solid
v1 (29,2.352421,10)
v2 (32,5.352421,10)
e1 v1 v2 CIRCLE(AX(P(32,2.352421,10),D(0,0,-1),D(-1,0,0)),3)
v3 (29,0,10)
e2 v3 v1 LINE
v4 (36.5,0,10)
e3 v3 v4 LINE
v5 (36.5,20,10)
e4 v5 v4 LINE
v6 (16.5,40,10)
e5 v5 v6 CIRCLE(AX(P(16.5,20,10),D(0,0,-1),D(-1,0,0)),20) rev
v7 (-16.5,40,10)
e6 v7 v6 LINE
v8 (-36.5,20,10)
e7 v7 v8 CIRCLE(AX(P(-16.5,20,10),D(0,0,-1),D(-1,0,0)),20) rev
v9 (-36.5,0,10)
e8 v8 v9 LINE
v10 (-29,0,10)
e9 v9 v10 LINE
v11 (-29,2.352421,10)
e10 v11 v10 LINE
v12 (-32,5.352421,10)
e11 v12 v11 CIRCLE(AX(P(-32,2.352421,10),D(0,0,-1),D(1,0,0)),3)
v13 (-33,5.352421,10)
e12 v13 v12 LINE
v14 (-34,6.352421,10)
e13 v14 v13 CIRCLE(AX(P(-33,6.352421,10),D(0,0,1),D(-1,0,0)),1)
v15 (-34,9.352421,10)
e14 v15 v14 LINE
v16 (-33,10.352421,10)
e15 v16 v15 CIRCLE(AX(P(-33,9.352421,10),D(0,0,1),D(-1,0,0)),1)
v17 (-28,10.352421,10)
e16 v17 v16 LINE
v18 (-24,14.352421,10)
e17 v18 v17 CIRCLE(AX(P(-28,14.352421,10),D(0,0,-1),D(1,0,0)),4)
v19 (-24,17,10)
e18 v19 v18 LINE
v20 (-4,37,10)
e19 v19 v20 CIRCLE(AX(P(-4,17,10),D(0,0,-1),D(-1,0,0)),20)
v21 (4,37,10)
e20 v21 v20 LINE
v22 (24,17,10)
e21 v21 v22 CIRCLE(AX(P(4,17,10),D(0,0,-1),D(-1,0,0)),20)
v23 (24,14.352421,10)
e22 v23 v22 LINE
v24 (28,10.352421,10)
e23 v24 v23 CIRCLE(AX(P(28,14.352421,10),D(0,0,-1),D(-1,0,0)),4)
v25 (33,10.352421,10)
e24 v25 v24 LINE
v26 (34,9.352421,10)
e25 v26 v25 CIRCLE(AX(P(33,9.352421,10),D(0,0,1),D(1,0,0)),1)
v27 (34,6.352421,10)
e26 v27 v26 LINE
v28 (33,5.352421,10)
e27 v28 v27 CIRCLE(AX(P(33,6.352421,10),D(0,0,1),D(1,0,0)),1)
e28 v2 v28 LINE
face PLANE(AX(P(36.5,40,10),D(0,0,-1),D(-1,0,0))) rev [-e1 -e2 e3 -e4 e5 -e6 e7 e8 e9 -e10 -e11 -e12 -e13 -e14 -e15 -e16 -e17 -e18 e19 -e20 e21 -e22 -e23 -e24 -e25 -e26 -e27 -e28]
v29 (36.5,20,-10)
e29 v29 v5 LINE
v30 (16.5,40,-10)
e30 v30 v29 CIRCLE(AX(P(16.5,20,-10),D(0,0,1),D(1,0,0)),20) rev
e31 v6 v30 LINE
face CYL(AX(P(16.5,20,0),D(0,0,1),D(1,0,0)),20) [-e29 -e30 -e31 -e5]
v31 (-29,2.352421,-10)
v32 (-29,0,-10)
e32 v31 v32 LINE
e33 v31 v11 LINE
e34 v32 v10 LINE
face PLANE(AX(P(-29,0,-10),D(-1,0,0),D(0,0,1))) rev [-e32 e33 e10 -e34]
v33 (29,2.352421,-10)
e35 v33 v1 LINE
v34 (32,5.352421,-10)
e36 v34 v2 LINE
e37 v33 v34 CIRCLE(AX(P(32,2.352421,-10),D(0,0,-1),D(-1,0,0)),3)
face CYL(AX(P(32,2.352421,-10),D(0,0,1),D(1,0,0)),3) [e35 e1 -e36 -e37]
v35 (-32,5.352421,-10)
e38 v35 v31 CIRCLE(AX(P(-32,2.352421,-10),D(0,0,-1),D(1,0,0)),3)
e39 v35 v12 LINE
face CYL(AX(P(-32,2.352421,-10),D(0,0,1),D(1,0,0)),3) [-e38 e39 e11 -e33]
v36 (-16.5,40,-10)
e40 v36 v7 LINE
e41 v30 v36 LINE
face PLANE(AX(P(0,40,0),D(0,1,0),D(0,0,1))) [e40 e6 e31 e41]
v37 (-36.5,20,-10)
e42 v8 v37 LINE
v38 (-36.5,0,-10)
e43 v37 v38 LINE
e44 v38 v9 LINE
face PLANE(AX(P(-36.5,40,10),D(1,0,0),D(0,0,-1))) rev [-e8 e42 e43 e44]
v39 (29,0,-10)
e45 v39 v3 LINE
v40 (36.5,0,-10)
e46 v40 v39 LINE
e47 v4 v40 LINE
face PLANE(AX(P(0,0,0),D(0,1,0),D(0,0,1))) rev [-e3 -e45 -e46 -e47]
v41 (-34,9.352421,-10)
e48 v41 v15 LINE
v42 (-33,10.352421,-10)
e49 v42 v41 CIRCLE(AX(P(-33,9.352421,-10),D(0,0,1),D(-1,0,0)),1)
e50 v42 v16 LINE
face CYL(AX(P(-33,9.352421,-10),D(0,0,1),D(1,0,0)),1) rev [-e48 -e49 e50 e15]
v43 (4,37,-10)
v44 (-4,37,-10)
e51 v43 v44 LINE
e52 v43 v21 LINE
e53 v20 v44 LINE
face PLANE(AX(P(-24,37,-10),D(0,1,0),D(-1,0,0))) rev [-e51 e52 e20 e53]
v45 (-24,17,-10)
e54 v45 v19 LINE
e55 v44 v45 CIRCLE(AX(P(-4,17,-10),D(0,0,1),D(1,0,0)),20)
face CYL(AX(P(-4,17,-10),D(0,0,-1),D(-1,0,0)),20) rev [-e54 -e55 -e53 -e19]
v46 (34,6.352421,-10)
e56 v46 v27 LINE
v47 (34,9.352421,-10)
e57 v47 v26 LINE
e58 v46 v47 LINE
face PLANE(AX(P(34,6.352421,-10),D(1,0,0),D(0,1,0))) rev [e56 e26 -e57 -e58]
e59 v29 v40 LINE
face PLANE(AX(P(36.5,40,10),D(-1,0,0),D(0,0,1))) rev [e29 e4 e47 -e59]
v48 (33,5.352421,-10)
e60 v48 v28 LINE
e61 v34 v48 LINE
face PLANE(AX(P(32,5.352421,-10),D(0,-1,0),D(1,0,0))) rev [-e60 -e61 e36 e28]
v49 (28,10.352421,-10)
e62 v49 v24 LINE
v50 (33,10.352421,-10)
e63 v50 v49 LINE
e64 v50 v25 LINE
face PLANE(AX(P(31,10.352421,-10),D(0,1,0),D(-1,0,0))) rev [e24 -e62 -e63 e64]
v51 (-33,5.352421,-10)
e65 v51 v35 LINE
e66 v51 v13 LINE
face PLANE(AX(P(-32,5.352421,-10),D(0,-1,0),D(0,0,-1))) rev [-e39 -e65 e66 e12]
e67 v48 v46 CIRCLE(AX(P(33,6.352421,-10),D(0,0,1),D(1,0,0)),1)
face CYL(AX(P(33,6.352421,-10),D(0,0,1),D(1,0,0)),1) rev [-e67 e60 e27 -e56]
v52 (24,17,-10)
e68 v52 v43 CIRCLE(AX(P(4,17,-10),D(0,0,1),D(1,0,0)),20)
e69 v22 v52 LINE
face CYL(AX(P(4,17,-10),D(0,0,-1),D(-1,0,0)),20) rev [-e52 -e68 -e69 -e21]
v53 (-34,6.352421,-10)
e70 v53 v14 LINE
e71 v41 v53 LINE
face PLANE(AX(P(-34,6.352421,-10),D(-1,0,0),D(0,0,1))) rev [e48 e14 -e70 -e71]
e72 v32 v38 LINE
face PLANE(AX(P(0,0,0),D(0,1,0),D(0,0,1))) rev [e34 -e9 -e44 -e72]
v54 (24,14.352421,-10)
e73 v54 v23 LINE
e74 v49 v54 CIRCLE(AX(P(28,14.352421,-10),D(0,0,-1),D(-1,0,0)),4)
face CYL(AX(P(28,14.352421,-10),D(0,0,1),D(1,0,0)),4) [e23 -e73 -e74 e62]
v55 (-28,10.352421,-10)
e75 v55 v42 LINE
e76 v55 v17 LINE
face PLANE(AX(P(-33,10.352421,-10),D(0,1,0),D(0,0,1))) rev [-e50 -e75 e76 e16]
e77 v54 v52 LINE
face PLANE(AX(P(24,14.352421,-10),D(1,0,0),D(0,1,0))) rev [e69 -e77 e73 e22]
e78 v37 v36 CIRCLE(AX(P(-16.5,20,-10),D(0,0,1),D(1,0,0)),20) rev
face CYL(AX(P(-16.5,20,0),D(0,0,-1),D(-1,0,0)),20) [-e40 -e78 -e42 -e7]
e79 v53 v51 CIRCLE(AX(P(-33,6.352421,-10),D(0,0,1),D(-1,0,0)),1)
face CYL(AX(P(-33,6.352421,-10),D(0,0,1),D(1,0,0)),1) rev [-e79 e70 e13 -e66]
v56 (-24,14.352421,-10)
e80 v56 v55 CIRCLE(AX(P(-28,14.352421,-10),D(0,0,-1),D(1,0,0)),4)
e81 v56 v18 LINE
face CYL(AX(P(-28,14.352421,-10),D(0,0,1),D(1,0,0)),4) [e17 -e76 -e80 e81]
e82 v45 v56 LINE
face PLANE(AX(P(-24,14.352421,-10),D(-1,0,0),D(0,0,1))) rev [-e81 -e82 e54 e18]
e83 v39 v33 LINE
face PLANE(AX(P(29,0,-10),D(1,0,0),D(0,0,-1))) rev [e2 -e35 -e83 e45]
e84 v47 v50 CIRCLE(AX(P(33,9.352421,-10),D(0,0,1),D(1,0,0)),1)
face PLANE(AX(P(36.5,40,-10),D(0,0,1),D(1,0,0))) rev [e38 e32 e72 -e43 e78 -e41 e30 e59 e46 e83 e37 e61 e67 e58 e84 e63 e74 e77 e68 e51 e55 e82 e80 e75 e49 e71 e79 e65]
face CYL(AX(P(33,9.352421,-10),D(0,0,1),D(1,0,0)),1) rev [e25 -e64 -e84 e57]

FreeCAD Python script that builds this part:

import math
import FreeCAD as App
import Part
import Sketcher
Q = App.Units.Quantity


def edges_at(feature, points):
    """Names of the edges that pass closest to the given points."""
    edges = feature.Shape.Edges
    near = lambda p: min(range(len(edges)), key=lambda i: edges[i].distToShape(Part.Vertex(*p))[0])
    return sorted({f"Edge{near(p) + 1}" for p in points})

doc = App.newDocument("Part")
body = doc.addObject("PartDesign::Body", "Body")

# Sketch on XZ plane
sketch1 = body.newObject("Sketcher::SketchObject", "Sketch")
sketch1.AttachmentSupport = (doc.getObject("XZ_Plane"), [""])
sketch1.MapMode = "FlatFace"
sketch1.addGeometry([
    Part.LineSegment(App.Vector(-36, -10, 0), App.Vector(-36, 10, 0)),
    Part.LineSegment(App.Vector(-36, 10, 0), App.Vector(36, 10, 0)),
    Part.LineSegment(App.Vector(36, 10, 0), App.Vector(36, -10, 0)),
    Part.LineSegment(App.Vector(36, -10, 0), App.Vector(-36, -10, 0)),
], False)
sketch1.addConstraint([
    Sketcher.Constraint("Coincident", 0, 2, 1, 1),
    Sketcher.Constraint("Coincident", 1, 2, 2, 1),
    Sketcher.Constraint("Coincident", 2, 2, 3, 1),
    Sketcher.Constraint("Coincident", 3, 2, 0, 1),
    Sketcher.Constraint("Vertical", 0),
    Sketcher.Constraint("Horizontal", 1),
    Sketcher.Constraint("Vertical", 2),
    Sketcher.Constraint("Horizontal", 3),
    Sketcher.Constraint("Symmetric", 0, 2, 2, 2, -1, 1),
    Sketcher.Constraint("DistanceX", 1, 1, 1, 2, Q("73 mm")),
    Sketcher.Constraint("DistanceY", 0, 1, 0, 2, Q("20 mm")),
])
pad1 = body.newObject("PartDesign::Pad", "Pad")
pad1.Profile = sketch1
pad1.Length = 40
pad1.Reversed = True

# Sketch on XY plane
sketch2 = body.newObject("Sketcher::SketchObject", "Sketch001")
sketch2.AttachmentSupport = (doc.getObject("XY_Plane"), [""])
sketch2.MapMode = "FlatFace"
sketch2.AttachmentOffset = App.Placement(App.Vector(0, 0, 10), App.Rotation())
sketch2.addGeometry([
    Part.LineSegment(App.Vector(-29, 2.4, 0), App.Vector(-29, 0, 0)),  # 0
    Part.LineSegment(App.Vector(-29, 0, 0), App.Vector(29, 0, 0)),  # 1
    Part.LineSegment(App.Vector(29, 0, 0), App.Vector(29, 2.4, 0)),  # 2
    Part.ArcOfCircle(Part.Circle(App.Vector(32, 2.4, 0), App.Vector(0, 0, 1), 3), math.radians(90), math.radians(180)),  # 3
    Part.LineSegment(App.Vector(32, 5.4, 0), App.Vector(33, 5.4, 0)),  # 4
    Part.ArcOfCircle(Part.Circle(App.Vector(33, 6.4, 0), App.Vector(0, 0, 1), 1), math.radians(-90), math.radians(0)),  # 5
    Part.LineSegment(App.Vector(34, 6.4, 0), App.Vector(34, 9.4, 0)),  # 6
    Part.ArcOfCircle(Part.Circle(App.Vector(33, 9.4, 0), App.Vector(0, 0, 1), 1), math.radians(0), math.radians(90)),  # 7
    Part.LineSegment(App.Vector(33, 10.4, 0), App.Vector(28, 10.4, 0)),  # 8
    Part.ArcOfCircle(Part.Circle(App.Vector(28, 14.4, 0), App.Vector(0, 0, 1), 4), math.radians(-180), math.radians(-90)),  # 9
    Part.LineSegment(App.Vector(24, 14.4, 0), App.Vector(24, 37, 0)),  # 10
    Part.LineSegment(App.Vector(24, 37, 0), App.Vector(-24, 37, 0)),  # 11
    Part.LineSegment(App.Vector(-24, 37, 0), App.Vector(-24, 14.4, 0)),  # 12
    Part.ArcOfCircle(Part.Circle(App.Vector(-28, 14.4, 0), App.Vector(0, 0, 1), 4), math.radians(-90), math.radians(0)),  # 13
    Part.LineSegment(App.Vector(-28, 10.4, 0), App.Vector(-33, 10.4, 0)),  # 14
    Part.ArcOfCircle(Part.Circle(App.Vector(-33, 9.4, 0), App.Vector(0, 0, 1), 1), math.radians(90), math.radians(180)),  # 15
    Part.LineSegment(App.Vector(-34, 9.4, 0), App.Vector(-34, 6.4, 0)),  # 16
    Part.ArcOfCircle(Part.Circle(App.Vector(-33, 6.4, 0), App.Vector(0, 0, 1), 1), math.radians(-180), math.radians(-90)),  # 17
    Part.LineSegment(App.Vector(-33, 5.4, 0), App.Vector(-32, 5.4, 0)),  # 18
    Part.ArcOfCircle(Part.Circle(App.Vector(-32, 2.4, 0), App.Vector(0, 0, 1), 3), math.radians(0), math.radians(90)),  # 19
], False)
sketch2.addConstraint([
    Sketcher.Constraint("Coincident", 0, 2, 1, 1),
    Sketcher.Constraint("Coincident", 1, 2, 2, 1),
    Sketcher.Constraint("Tangent", 2, 2, 3, 2),
    Sketcher.Constraint("Tangent", 3, 1, 4, 1),
    Sketcher.Constraint("Tangent", 4, 2, 5, 1),
    Sketcher.Constraint("Tangent", 5, 2, 6, 1),
    Sketcher.Constraint("Tangent", 6, 2, 7, 1),
    Sketcher.Constraint("Tangent", 7, 2, 8, 1),
    Sketcher.Constraint("Tangent", 8, 2, 9, 2),
    Sketcher.Constraint("Tangent", 9, 1, 10, 1),
    Sketcher.Constraint("Coincident", 10, 2, 11, 1),
    Sketcher.Constraint("Coincident", 11, 2, 12, 1),
    Sketcher.Constraint("Tangent", 12, 2, 13, 2),
    Sketcher.Constraint("Tangent", 13, 1, 14, 1),
    Sketcher.Constraint("Tangent", 14, 2, 15, 1),
    Sketcher.Constraint("Tangent", 15, 2, 16, 1),
    Sketcher.Constraint("Tangent", 16, 2, 17, 1),
    Sketcher.Constraint("Tangent", 17, 2, 18, 1),
    Sketcher.Constraint("Tangent", 18, 2, 19, 2),
    Sketcher.Constraint("Tangent", 19, 1, 0, 1),
    Sketcher.Constraint("Vertical", 0),
    Sketcher.Constraint("Horizontal", 1),
    Sketcher.Constraint("Vertical", 2),
    Sketcher.Constraint("Horizontal", 4),
    Sketcher.Constraint("Vertical", 6),
    Sketcher.Constraint("Horizontal", 8),
    Sketcher.Constraint("Vertical", 10),
    Sketcher.Constraint("Horizontal", 11),
    Sketcher.Constraint("Vertical", 12),
    Sketcher.Constraint("Horizontal", 14),
    Sketcher.Constraint("Vertical", 16),
    Sketcher.Constraint("Horizontal", 18),
    Sketcher.Constraint("Equal", 5, 7),
    Sketcher.Constraint("Equal", 9, 13),
    Sketcher.Constraint("Equal", 7, 15),
    Sketcher.Constraint("Equal", 15, 17),
    Sketcher.Constraint("Equal", 3, 19),
    Sketcher.Constraint("Symmetric", 0, 2, 1, 2, -1, 1),
    Sketcher.Constraint("Symmetric", 9, 3, 13, 3, -2),
    Sketcher.Constraint("Symmetric", 5, 3, 17, 3, -2),
    Sketcher.Constraint("Radius", 3, Q("3 mm")),
    Sketcher.Constraint("Radius", 5, Q("1 mm")),
    Sketcher.Constraint("Radius", 9, Q("4 mm")),
    Sketcher.Constraint("DistanceX", 1, 1, 1, 2, Q("58 mm")),
    Sketcher.Constraint("DistanceX", 4, 1, 4, 2, Q("1 mm")),
    Sketcher.Constraint("DistanceX", 8, 2, 8, 1, Q("5 mm")),
    Sketcher.Constraint("DistanceY", 6, 1, 6, 2, Q("3 mm")),
    Sketcher.Constraint("DistanceY", -1, 1, 10, 2, Q("37 mm")),
    Sketcher.Constraint("DistanceY", 0, 2, 0, 1, Q("2.352421 mm")),
])
pocket1 = body.newObject("PartDesign::Pocket", "Pocket")
pocket1.Profile = sketch2
pocket1.Length = 20
doc.recompute()

fillet = body.newObject("PartDesign::Fillet", "Fillet")
fillet.Base = (pocket1, edges_at(pocket1, [(36.5, 40, 0), (-36.5, 40, 0)]))
fillet.Radius = 20
doc.recompute()

fillet2 = body.newObject("PartDesign::Fillet", "Fillet001")
fillet2.Base = (fillet, edges_at(fillet, [(-24, 37, 0), (24, 37, 0)]))
fillet2.Radius = 20

doc.recompute()
